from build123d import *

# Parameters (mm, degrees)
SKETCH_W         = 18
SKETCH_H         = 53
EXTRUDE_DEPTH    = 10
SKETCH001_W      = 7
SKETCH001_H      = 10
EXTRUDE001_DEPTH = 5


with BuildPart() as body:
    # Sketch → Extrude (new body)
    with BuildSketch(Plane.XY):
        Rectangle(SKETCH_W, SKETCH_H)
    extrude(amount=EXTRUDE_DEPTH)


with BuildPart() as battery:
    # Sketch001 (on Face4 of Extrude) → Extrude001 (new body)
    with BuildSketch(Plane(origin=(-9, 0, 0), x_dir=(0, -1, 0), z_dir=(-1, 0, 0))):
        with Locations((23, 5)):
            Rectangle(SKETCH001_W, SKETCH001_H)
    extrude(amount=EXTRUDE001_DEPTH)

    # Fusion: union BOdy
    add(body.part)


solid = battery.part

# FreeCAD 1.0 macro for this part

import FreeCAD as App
import Part
import Sketcher

V = App.Vector
Q = App.Units.Quantity

doc = App.newDocument("Part")
body = doc.addObject("PartDesign::Body", "Body")

# Sketch on XY plane
sketch1 = body.newObject("Sketcher::SketchObject", "Sketch")
sketch1.AttachmentSupport = (doc.getObject("XY_Plane"), [""])
sketch1.MapMode = "FlatFace"
sketch1.addGeometry(Part.LineSegment(V(-9, 26, 0), V(-9, -26, 0)), False)
sketch1.addGeometry(Part.LineSegment(V(-9, -26, 0), V(9, -26, 0)), False)
sketch1.addGeometry(Part.LineSegment(V(9, -26, 0), V(9, 26, 0)), False)
sketch1.addGeometry(Part.LineSegment(V(9, 26, 0), V(-9, 26, 0)), False)
sketch1.addConstraint(Sketcher.Constraint("Coincident", 0, 2, 1, 1))
sketch1.addConstraint(Sketcher.Constraint("Coincident", 1, 2, 2, 1))
sketch1.addConstraint(Sketcher.Constraint("Coincident", 2, 2, 3, 1))
sketch1.addConstraint(Sketcher.Constraint("Coincident", 3, 2, 0, 1))
sketch1.addConstraint(Sketcher.Constraint("Vertical", 0))
sketch1.addConstraint(Sketcher.Constraint("Horizontal", 1))
sketch1.addConstraint(Sketcher.Constraint("Vertical", 2))
sketch1.addConstraint(Sketcher.Constraint("Horizontal", 3))
sketch1.addConstraint(Sketcher.Constraint("Symmetric", 0, 2, 2, 2, -1, 1))
sketch1.addConstraint(Sketcher.Constraint("DistanceX", 1, 1, 1, 2, Q("18 mm")))
sketch1.addConstraint(Sketcher.Constraint("DistanceY", 0, 2, 0, 1, Q("53 mm")))
pad1 = body.newObject("PartDesign::Pad", "Pad")
pad1.Profile = sketch1
pad1.Length = 10
body2 = doc.addObject("PartDesign::Body", "Body001")

# Sketch on YZ plane
sketch2 = body2.newObject("Sketcher::SketchObject", "Sketch001")
sketch2.AttachmentSupport = (doc.getObject("YZ_Plane001"), [""])
sketch2.MapMode = "FlatFace"
sketch2.AttachmentOffset = App.Placement(V(0, 0, -9), App.Rotation())
sketch2.addGeometry(Part.LineSegment(V(-20, 10, 0), V(-20, 0, 0)), False)
sketch2.addGeometry(Part.LineSegment(V(-20, 0, 0), V(-26, 0, 0)), False)
sketch2.addGeometry(Part.LineSegment(V(-26, 0, 0), V(-26, 10, 0)), False)
sketch2.addGeometry(Part.LineSegment(V(-26, 10, 0), V(-20, 10, 0)), False)
sketch2.addConstraint(Sketcher.Constraint("Coincident", 0, 2, 1, 1))
sketch2.addConstraint(Sketcher.Constraint("Coincident", 1, 2, 2, 1))
sketch2.addConstraint(Sketcher.Constraint("Coincident", 2, 2, 3, 1))
sketch2.addConstraint(Sketcher.Constraint("Coincident", 3, 2, 0, 1))
sketch2.addConstraint(Sketcher.Constraint("Vertical", 0))
sketch2.addConstraint(Sketcher.Constraint("Horizontal", 1))
sketch2.addConstraint(Sketcher.Constraint("Vertical", 2))
sketch2.addConstraint(Sketcher.Constraint("Horizontal", 3))
sketch2.addConstraint(Sketcher.Constraint("PointOnObject", 0, 2, -1))
sketch2.addConstraint(Sketcher.Constraint("DistanceX", 1, 2, 1, 1, Q("7 mm")))
sketch2.addConstraint(Sketcher.Constraint("DistanceY", 0, 2, 0, 1, Q("10 mm")))
sketch2.addConstraint(Sketcher.Constraint("DistanceX", 0, 2, -1, 1, Q("19.5 mm")))
pad2 = body2.newObject("PartDesign::Pad", "Pad001")
pad2.Profile = sketch2
pad2.Length = 5
pad2.Reversed = True
doc.recompute()

boolean = body2.newObject("PartDesign::Boolean", "Boolean")
boolean.Type = "Fuse"
boolean.addObjects([body])

doc.recompute()
